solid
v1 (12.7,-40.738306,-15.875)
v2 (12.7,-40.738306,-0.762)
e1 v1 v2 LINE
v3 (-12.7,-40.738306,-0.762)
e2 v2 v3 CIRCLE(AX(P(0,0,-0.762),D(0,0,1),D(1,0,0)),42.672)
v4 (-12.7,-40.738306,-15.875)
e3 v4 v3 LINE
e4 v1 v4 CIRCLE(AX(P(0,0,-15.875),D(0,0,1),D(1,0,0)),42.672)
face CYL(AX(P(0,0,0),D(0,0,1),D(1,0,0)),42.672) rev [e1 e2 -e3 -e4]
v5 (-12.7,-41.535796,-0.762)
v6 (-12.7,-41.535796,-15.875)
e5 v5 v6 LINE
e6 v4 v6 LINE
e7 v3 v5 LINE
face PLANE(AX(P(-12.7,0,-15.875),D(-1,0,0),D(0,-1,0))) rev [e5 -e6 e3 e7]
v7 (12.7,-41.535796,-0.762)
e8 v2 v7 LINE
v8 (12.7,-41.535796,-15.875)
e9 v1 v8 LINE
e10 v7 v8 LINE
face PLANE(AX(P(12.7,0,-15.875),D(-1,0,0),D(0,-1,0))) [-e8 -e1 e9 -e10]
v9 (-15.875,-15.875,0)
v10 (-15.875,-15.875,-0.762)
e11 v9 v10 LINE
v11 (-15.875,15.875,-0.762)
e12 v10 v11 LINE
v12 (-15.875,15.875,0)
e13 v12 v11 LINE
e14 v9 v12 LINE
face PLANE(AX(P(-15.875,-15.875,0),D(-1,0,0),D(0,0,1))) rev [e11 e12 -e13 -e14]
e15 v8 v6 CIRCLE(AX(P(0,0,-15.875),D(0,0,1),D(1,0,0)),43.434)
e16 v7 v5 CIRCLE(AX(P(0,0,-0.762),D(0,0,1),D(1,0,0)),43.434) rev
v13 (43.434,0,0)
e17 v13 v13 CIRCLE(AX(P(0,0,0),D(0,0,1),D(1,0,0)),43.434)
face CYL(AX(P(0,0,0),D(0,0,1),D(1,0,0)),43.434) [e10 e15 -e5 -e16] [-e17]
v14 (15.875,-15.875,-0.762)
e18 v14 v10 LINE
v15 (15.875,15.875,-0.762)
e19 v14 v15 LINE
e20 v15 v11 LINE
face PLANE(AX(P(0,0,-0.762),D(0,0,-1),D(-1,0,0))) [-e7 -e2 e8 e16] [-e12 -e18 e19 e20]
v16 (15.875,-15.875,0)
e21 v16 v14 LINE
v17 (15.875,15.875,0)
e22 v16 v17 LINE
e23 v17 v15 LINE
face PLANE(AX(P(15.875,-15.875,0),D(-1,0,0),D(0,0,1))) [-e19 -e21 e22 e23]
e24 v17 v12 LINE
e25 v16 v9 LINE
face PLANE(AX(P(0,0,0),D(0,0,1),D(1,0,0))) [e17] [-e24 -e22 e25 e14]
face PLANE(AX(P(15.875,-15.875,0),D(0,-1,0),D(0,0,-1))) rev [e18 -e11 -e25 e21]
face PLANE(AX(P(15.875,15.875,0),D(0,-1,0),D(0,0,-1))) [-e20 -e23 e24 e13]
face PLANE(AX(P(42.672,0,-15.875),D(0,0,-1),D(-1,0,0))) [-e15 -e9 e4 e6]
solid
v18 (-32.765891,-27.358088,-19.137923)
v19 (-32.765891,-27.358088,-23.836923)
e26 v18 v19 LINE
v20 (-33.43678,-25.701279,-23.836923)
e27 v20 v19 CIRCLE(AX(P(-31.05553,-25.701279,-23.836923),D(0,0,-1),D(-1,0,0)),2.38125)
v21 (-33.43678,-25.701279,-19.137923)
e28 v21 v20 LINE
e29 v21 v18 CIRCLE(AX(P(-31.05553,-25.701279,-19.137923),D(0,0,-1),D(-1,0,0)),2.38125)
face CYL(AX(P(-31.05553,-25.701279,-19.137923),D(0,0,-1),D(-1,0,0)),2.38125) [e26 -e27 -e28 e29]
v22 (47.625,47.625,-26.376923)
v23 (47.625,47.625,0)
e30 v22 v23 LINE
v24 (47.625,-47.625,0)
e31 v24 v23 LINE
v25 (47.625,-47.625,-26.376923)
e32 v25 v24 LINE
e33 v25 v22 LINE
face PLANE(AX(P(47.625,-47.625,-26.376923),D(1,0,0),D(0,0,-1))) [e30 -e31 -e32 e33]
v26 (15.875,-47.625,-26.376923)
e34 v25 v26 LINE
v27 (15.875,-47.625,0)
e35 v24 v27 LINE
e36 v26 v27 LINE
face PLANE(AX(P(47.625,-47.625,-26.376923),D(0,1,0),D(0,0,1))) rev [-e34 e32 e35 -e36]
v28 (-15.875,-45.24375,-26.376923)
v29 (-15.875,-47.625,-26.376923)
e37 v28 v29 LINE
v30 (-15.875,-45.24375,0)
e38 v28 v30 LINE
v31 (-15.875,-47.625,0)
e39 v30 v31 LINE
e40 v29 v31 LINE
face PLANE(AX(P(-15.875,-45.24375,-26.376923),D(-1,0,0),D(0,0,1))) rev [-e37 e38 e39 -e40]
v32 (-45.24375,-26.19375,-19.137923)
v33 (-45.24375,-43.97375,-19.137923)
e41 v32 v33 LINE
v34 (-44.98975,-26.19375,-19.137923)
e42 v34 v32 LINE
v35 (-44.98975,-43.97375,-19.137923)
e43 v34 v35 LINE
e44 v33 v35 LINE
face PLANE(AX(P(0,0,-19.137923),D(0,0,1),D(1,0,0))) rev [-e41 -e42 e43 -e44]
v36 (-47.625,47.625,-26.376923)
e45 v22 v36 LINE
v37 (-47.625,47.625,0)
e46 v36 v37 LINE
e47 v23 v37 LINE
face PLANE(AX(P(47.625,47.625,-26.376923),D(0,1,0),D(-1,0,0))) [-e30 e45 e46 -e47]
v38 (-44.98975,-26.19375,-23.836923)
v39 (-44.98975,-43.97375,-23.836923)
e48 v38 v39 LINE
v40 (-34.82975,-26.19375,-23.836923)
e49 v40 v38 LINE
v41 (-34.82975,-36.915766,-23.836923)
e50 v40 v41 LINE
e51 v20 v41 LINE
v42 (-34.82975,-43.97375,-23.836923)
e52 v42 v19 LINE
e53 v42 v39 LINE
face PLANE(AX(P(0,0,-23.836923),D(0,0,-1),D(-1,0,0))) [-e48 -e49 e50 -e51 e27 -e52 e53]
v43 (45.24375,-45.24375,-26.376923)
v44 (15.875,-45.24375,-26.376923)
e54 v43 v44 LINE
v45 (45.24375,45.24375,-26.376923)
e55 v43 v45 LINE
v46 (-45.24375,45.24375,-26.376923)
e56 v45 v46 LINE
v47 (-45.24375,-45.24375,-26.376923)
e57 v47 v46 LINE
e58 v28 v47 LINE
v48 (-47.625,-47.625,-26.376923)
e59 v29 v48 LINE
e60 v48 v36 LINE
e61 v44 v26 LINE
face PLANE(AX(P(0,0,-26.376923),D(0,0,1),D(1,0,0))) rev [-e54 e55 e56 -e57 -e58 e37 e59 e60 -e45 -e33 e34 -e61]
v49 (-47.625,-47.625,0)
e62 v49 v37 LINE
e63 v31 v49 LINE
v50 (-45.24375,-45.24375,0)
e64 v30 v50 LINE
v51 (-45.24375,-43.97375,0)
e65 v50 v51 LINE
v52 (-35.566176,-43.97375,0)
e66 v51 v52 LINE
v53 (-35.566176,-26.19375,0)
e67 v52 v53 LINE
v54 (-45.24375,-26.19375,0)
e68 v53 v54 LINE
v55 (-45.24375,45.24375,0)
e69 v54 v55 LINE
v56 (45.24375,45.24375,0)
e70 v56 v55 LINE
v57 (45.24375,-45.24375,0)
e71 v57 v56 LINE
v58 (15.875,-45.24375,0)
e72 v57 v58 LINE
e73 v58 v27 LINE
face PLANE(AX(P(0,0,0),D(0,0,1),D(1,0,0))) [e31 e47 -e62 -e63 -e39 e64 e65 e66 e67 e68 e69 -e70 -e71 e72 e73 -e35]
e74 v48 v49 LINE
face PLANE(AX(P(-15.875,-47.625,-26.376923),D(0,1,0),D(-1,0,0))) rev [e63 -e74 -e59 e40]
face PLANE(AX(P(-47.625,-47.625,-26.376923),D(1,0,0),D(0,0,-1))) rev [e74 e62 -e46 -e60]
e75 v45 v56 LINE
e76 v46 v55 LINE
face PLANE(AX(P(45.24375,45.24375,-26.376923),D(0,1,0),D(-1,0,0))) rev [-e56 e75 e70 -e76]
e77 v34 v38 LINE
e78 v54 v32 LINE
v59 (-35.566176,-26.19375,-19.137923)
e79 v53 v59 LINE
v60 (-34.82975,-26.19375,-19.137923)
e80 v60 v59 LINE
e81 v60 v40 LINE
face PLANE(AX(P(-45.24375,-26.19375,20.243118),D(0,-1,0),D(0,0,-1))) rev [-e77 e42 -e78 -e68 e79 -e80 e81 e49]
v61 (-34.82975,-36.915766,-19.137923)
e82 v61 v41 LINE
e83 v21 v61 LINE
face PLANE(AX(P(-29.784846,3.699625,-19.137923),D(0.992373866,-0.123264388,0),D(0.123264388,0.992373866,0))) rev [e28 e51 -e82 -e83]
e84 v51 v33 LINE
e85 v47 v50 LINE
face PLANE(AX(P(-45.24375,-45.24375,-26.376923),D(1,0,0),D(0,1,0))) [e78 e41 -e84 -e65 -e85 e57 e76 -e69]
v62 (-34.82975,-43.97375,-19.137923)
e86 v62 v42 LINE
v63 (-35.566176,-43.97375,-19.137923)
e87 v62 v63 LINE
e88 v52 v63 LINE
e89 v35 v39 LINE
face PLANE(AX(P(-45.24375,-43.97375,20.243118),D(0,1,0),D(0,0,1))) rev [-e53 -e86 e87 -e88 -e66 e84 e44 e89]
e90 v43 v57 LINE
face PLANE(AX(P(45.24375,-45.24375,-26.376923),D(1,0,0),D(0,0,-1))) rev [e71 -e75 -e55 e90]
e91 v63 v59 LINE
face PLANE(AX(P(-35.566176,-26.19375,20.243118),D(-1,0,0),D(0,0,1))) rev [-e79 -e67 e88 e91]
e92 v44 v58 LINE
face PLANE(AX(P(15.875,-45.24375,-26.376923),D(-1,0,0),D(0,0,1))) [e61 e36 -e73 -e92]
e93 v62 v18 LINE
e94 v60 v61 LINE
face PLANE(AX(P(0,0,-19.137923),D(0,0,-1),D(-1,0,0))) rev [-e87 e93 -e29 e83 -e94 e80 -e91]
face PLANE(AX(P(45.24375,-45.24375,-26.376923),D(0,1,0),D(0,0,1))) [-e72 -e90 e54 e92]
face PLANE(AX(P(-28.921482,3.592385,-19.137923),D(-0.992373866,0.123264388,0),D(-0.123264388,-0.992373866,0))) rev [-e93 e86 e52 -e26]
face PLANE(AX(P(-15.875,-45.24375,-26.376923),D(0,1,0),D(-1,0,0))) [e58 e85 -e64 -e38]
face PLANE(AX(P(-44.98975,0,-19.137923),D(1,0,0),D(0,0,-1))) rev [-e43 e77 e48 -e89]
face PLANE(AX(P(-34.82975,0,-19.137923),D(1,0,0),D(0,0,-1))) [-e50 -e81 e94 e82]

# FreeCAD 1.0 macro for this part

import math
import FreeCAD as App
import Part
import Sketcher

V = App.Vector
Q = App.Units.Quantity


def add_polygon(sketch, points):
    """Adds a closed chain of lines whose ends are joined by coincident constraints."""
    first, n = sketch.GeometryCount, len(points)
    for a, b in zip(points, points[1:] + points[:1]):
        sketch.addGeometry(Part.LineSegment(App.Vector(*a, 0), App.Vector(*b, 0)), False)
    for i in range(n):
        sketch.addConstraint(Sketcher.Constraint("Coincident", first + i, 2, first + (i + 1) % n, 1))

doc = App.newDocument("Part")
body = doc.addObject("PartDesign::Body", "Body")

sketch1 = doc.addObject("Sketcher::SketchObject", "Sketch")
body.addObject(sketch1)
sketch1.AttachmentSupport = (doc.XZ_Plane, [""])
sketch1.MapMode = "FlatFace"
add_polygon(sketch1, [(0, 0), (43.4, 0), (43.4, -15.9), (42.7, -15.9), (42.7, -0.8), (0, -0.8)])
sketch1.addConstraint([
    Sketcher.Constraint("Horizontal", 0),
    Sketcher.Constraint("Vertical", 1),
    Sketcher.Constraint("Horizontal", 2),
    Sketcher.Constraint("Vertical", 3),
    Sketcher.Constraint("Horizontal", 4),
    Sketcher.Constraint("Vertical", 5),
    Sketcher.Constraint("Coincident", 5, 2, -1, 1),
    Sketcher.Constraint("Equal", 2, 5),
    Sketcher.Constraint("DistanceX", 0, 1, 0, 2, Q("1.71 in")),
    Sketcher.Constraint("DistanceX", 2, 2, 2, 1, Q("0.03 in")),
    Sketcher.Constraint("DistanceY", 1, 2, 1, 1, Q("0.625 in")),
])
revolution = doc.addObject("PartDesign::Revolution", "Revolution")
body.addObject(revolution)
revolution.Profile = sketch1
revolution.ReferenceAxis = (sketch1, ["V_Axis"])
revolution.Angle = 360

sketch2 = doc.addObject("Sketcher::SketchObject", "Sketch001")
body.addObject(sketch2)
sketch2.AttachmentSupport = (doc.XY_Plane, [""])
sketch2.MapMode = "FlatFace"
sketch2.AttachmentOffset = App.Placement(V(0, 0, -0.03 * 25.4), App.Rotation())
add_polygon(sketch2, [(16, 16), (16, -16), (-16, -16), (-16, 16)])
sketch2.addConstraint([
    Sketcher.Constraint("Vertical", 0),
    Sketcher.Constraint("Horizontal", 1),
    Sketcher.Constraint("Vertical", 2),
    Sketcher.Constraint("Horizontal", 3),
    Sketcher.Constraint("Symmetric", 0, 2, 2, 2, -1, 1),
    Sketcher.Constraint("Equal", 3, 0),
    Sketcher.Constraint("DistanceX", 1, 2, 1, 1, Q("1.25 in")),
])
pocket1 = doc.addObject("PartDesign::Pocket", "Pocket")
body.addObject(pocket1)
pocket1.Profile = sketch2
pocket1.Type = "ThroughAll"
pocket1.Reversed = True

sketch3 = doc.addObject("Sketcher::SketchObject", "Sketch002")
body.addObject(sketch3)
sketch3.AttachmentSupport = (doc.XY_Plane, [""])
sketch3.MapMode = "FlatFace"
sketch3.AttachmentOffset = App.Placement(V(0, 0, -0.03 * 25.4), App.Rotation())
add_polygon(sketch3, [(13, 0), (13, -51), (-13, -51), (-13, 0)])
sketch3.addConstraint([
    Sketcher.Constraint("Vertical", 0),
    Sketcher.Constraint("Horizontal", 1),
    Sketcher.Constraint("Vertical", 2),
    Sketcher.Constraint("Horizontal", 3),
    Sketcher.Constraint("Symmetric", 2, 2, 3, 2, -1, 1),
    Sketcher.Constraint("DistanceX", 1, 2, 1, 1, Q("1 in")),
    Sketcher.Constraint("DistanceY", 0, 2, 0, 1, Q("2 in")),
])
pocket2 = doc.addObject("PartDesign::Pocket", "Pocket001")
body.addObject(pocket2)
pocket2.Profile = sketch3
pocket2.Type = "ThroughAll"
body2 = doc.addObject("PartDesign::Body", "Body001")

sketch4 = doc.addObject("Sketcher::SketchObject", "Sketch003")
body2.addObject(sketch4)
sketch4.AttachmentSupport = (doc.getObject("XY_Plane001"), [""])
sketch4.MapMode = "FlatFace"
add_polygon(sketch4, [(-45.2, 45.2), (45.2, 45.2), (45.2, -45.2), (15.9, -45.2), (15.9, -47.6), (47.6, -47.6), (47.6, 47.6), (-47.6, 47.6), (-47.6, -47.6), (-15.9, -47.6), (-15.9, -45.2), (-45.2, -45.2)])
sketch4.addConstraint([
    Sketcher.Constraint("Horizontal", 0),
    Sketcher.Constraint("Vertical", 1),
    Sketcher.Constraint("Horizontal", 2),
    Sketcher.Constraint("Vertical", 3),
    Sketcher.Constraint("Horizontal", 4),
    Sketcher.Constraint("Vertical", 5),
    Sketcher.Constraint("Horizontal", 6),
    Sketcher.Constraint("Vertical", 7),
    Sketcher.Constraint("Horizontal", 8),
    Sketcher.Constraint("Vertical", 9),
    Sketcher.Constraint("Horizontal", 10),
    Sketcher.Constraint("Vertical", 11),
    Sketcher.Constraint("Symmetric", 4, 2, 6, 2, -1, 1),
    Sketcher.Constraint("Symmetric", 0, 2, 10, 2, -1, 1),
    Sketcher.Constraint("Symmetric", 3, 2, 8, 2, -2),
    Sketcher.Constraint("Horizontal", 2, 2, 9, 2),
    Sketcher.Constraint("Equal", 0, 1),
    Sketcher.Constraint("Equal", 6, 5),
    Sketcher.Constraint("DistanceX", 4, 1, 4, 2, Q("1.25 in")),
    Sketcher.Constraint("DistanceX", 6, 2, 6, 1, Q("3.75 in")),
    Sketcher.Constraint("DistanceX", 0, 1, 0, 2, Q("3.5625 in")),
])
pad1 = doc.addObject("PartDesign::Pad", "Pad")
body2.addObject(pad1)
pad1.Profile = sketch4
pad1.Length = 26.376923
pad1.Reversed = True
body3 = doc.addObject("PartDesign::Body", "Body002")

sketch5 = doc.addObject("Sketcher::SketchObject", "Sketch004")
body3.addObject(sketch5)
sketch5.AttachmentSupport = (doc.getObject("XY_Plane002"), [""])
sketch5.MapMode = "FlatFace"
sketch5.AttachmentOffset = App.Placement(V(0, 0, -23.836923), App.Rotation())
sketch5.addGeometry([
    Part.LineSegment(V(-34.8, -26.2, 0), V(-34.8, -36.9, 0)),
    Part.LineSegment(V(-34.8, -36.9, 0), V(-33.4, -25.7, 0)),
    Part.ArcOfCircle(Part.Circle(V(-31.1, -25.7, 0), V(0, 0, 1), 2.4), math.radians(-136), math.radians(180)),
    Part.LineSegment(V(-32.8, -27.4, 0), V(-34.8, -44, 0)),
    Part.LineSegment(V(-34.8, -44, 0), V(-45, -44, 0)),
    Part.LineSegment(V(-45, -44, 0), V(-45, -26.2, 0)),
    Part.LineSegment(V(-45, -26.2, 0), V(-34.8, -26.2, 0)),
], False)
sketch5.addConstraint([
    Sketcher.Constraint("Coincident", 0, 2, 1, 1),
    Sketcher.Constraint("Coincident", 1, 2, 2, 2),
    Sketcher.Constraint("Coincident", 2, 1, 3, 1),
    Sketcher.Constraint("Coincident", 3, 2, 4, 1),
    Sketcher.Constraint("Coincident", 4, 2, 5, 1),
    Sketcher.Constraint("Coincident", 5, 2, 6, 1),
    Sketcher.Constraint("Coincident", 6, 2, 0, 1),
    Sketcher.Constraint("Vertical", 0),
    Sketcher.Constraint("Horizontal", 4),
    Sketcher.Constraint("Vertical", 5),
    Sketcher.Constraint("Horizontal", 6),
    Sketcher.Constraint("Parallel", 1, 3),
    Sketcher.Constraint("Horizontal", 2, 3, 1, 2),
    Sketcher.Constraint("Vertical", 0, 2, 3, 2),
    Sketcher.Constraint("DistanceX", 4, 2, 4, 1, Q("0.4 in")),
    Sketcher.Constraint("DistanceY", 5, 1, 5, 2, Q("0.7 in")),
    Sketcher.Constraint("Radius", 2, Q("0.09375 in")),
    Sketcher.Constraint("DistanceY", 5, 2, -1, 1, Q("1.03125 in")),
    Sketcher.Constraint("Distance", 3, Q("16.743349 mm")),
    Sketcher.Constraint("DistanceY", 0, 2, 0, 1, Q("10.722016 mm")),
    Sketcher.Constraint("DistanceX", 2, 3, -1, 1, Q("31.05553 mm")),
    Sketcher.Constraint("DistanceY", 2, 3, -1, 1, Q("25.701279 mm")),
])
pad2 = doc.addObject("PartDesign::Pad", "Pad001")
body3.addObject(pad2)
pad2.Profile = sketch5
pad2.Length = Q("0.185 in")
body2.AllowCompound = True
doc.recompute()

boolean = doc.addObject("PartDesign::Boolean", "Boolean")
body2.addObject(boolean)
boolean.Type = "Fuse"
boolean.addObjects([body3])

sketch6 = doc.addObject("Sketcher::SketchObject", "Sketch005")
body2.addObject(sketch6)
sketch6.AttachmentSupport = (doc.getObject("XY_Plane001"), [""])
sketch6.MapMode = "FlatFace"
sketch6.AttachmentOffset = App.Placement(V(0, 0, -19.137923), App.Rotation())
add_polygon(sketch6, [(-45, -26), (-45, -44), (-36, -44), (-36, -26)])
sketch6.addConstraint([
    Sketcher.Constraint("Vertical", 0),
    Sketcher.Constraint("Horizontal", 1),
    Sketcher.Constraint("Vertical", 2),
    Sketcher.Constraint("Horizontal", 3),
    Sketcher.Constraint("DistanceY", 0, 2, 0, 1, Q("0.7 in")),
    Sketcher.Constraint("DistanceX", 0, 2, -1, 1, Q("1.78125 in")),
    Sketcher.Constraint("DistanceY", 2, 2, -1, 1, Q("1.03125 in")),
    Sketcher.Constraint("DistanceX", 1, 1, 1, 2, Q("9.677574 mm")),
])
pad3 = doc.addObject("PartDesign::Pad", "Pad002")
body2.addObject(pad3)
pad3.Profile = sketch6
pad3.Length = 19.137923

doc.recompute()
